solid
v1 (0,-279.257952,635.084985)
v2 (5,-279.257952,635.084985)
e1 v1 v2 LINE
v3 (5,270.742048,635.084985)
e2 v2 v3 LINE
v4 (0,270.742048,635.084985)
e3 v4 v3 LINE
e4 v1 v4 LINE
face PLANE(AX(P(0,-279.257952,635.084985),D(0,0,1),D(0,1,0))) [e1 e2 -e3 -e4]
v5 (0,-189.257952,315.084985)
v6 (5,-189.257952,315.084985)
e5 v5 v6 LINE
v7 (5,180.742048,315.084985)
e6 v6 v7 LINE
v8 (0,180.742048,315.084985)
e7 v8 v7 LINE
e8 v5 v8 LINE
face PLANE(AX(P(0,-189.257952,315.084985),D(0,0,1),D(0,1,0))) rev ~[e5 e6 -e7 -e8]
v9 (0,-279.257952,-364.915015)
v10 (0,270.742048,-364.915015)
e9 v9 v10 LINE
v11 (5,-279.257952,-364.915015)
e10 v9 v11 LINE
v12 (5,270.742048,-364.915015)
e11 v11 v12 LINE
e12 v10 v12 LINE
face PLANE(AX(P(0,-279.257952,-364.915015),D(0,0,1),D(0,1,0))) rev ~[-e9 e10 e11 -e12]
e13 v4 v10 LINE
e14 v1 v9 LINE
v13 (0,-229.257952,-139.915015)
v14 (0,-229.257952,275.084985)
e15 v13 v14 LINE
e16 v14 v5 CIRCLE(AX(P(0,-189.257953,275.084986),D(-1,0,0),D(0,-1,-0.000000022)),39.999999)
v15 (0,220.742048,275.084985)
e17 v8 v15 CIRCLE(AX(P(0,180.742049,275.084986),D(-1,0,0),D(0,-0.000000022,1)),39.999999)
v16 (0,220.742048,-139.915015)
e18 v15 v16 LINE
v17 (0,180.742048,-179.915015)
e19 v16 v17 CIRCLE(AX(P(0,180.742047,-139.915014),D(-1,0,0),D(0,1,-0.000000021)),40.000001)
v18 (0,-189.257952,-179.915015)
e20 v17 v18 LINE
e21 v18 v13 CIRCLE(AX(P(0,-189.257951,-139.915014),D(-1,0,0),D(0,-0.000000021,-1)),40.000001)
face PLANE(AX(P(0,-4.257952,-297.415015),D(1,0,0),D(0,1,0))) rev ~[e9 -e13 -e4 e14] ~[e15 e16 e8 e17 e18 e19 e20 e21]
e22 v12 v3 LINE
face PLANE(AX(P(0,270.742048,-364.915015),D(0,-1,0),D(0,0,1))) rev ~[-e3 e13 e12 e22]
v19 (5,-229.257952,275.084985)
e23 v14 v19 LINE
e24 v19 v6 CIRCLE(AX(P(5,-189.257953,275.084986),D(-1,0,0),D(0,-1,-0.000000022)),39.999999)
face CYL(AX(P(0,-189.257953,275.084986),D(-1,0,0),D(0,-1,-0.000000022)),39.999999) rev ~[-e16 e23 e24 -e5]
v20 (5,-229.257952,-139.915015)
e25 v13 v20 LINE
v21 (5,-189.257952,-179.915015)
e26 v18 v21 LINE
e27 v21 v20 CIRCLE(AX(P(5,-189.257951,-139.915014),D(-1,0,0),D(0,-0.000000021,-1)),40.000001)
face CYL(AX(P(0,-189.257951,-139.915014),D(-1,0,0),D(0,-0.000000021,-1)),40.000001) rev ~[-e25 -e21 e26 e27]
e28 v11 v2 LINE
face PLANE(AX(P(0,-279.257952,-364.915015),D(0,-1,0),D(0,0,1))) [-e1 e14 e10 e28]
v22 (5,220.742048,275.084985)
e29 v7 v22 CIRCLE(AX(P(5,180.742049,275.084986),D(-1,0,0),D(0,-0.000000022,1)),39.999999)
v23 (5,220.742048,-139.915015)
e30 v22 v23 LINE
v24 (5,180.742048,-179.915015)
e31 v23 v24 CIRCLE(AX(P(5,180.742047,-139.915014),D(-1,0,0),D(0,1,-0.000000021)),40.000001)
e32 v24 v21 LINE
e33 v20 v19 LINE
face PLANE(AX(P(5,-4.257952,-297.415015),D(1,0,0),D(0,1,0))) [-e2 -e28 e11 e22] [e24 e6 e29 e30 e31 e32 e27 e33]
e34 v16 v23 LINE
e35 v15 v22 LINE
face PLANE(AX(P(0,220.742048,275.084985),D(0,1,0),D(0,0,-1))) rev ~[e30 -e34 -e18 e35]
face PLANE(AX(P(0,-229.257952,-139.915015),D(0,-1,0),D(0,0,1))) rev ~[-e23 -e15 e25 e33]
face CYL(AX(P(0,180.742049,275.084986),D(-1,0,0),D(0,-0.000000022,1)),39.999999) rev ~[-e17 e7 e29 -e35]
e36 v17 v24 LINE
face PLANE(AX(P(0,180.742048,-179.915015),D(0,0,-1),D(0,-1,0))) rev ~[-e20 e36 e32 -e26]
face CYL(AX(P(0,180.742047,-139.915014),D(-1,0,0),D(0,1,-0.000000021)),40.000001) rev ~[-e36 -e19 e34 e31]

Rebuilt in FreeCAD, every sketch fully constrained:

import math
import FreeCAD as App
import Part
import Sketcher

doc = App.newDocument("Part")
body = doc.addObject("PartDesign::Body", "Body")

# Sketch on YZ plane
sketch1 = body.newObject("Sketcher::SketchObject", "Sketch")
sketch1.AttachmentSupport = (doc.getObject("YZ_Plane"), [""])
sketch1.MapMode = "FlatFace"
sketch1.addGeometry([
    Part.LineSegment(App.Vector(-279.257952, 365.084985, 0), App.Vector(-279.257952, -229.915015, 0)),  # 0
    Part.LineSegment(App.Vector(-279.257952, -229.915015, 0), App.Vector(270.742048, -229.915015, 0)),  # 1
    Part.LineSegment(App.Vector(270.742048, -229.915015, 0), App.Vector(270.742048, 365.084985, 0)),  # 2
    Part.LineSegment(App.Vector(270.742048, 365.084985, 0), App.Vector(-279.257952, 365.084985, 0)),  # 3
    Part.LineSegment(App.Vector(-229.257952, -139.915015, 0), App.Vector(-229.257952, 275.084985, 0)),  # 4
    Part.ArcOfCircle(Part.Circle(App.Vector(-189.257953, 275.084986, 0), App.Vector(0, 0, 1), 39.999999), math.radians(89.999999), math.radians(180.000001)),  # 5
    Part.LineSegment(App.Vector(-189.257952, 315.084985, 0), App.Vector(180.742048, 315.084985, 0)),  # 6
    Part.ArcOfCircle(Part.Circle(App.Vector(180.742049, 275.084986, 0), App.Vector(0, 0, 1), 39.999999), math.radians(-0.000001), math.radians(90.000001)),  # 7
    Part.LineSegment(App.Vector(220.742048, 275.084985, 0), App.Vector(220.742048, -139.915015, 0)),  # 8
    Part.ArcOfCircle(Part.Circle(App.Vector(180.742047, -139.915014, 0), App.Vector(0, 0, 1), 40.000001), math.radians(-89.999999), math.radians(-0.000001)),  # 9
    Part.LineSegment(App.Vector(180.742048, -179.915015, 0), App.Vector(-189.257952, -179.915015, 0)),  # 10
    Part.ArcOfCircle(Part.Circle(App.Vector(-189.257951, -139.915014, 0), App.Vector(0, 0, 1), 40.000001), math.radians(-179.999999), math.radians(-90.000001)),  # 11
], False)
sketch1.addConstraint([
    Sketcher.Constraint("Coincident", 0, 2, 1, 1),
    Sketcher.Constraint("Coincident", 1, 2, 2, 1),
    Sketcher.Constraint("Coincident", 2, 2, 3, 1),
    Sketcher.Constraint("Coincident", 3, 2, 0, 1),
    Sketcher.Constraint("Tangent", 4, 2, 5, 2),
    Sketcher.Constraint("Tangent", 5, 1, 6, 1),
    Sketcher.Constraint("Tangent", 6, 2, 7, 2),
    Sketcher.Constraint("Tangent", 7, 1, 8, 1),
    Sketcher.Constraint("Tangent", 8, 2, 9, 2),
    Sketcher.Constraint("Tangent", 9, 1, 10, 1),
    Sketcher.Constraint("Tangent", 10, 2, 11, 2),
    Sketcher.Constraint("Tangent", 11, 1, 4, 1),
    Sketcher.Constraint("Vertical", 0),
    Sketcher.Constraint("Horizontal", 1),
    Sketcher.Constraint("Vertical", 2),
    Sketcher.Constraint("Horizontal", 3),
    Sketcher.Constraint("Vertical", 4),
    Sketcher.Constraint("Horizontal", 6),
    Sketcher.Constraint("Vertical", 8),
    Sketcher.Constraint("Horizontal", 10),
    Sketcher.Constraint("Equal", 5, 7),
    Sketcher.Constraint("Equal", 7, 9),
    Sketcher.Constraint("Equal", 9, 11),
    Sketcher.Constraint("Radius", 5, 39.999999),
    Sketcher.Constraint("DistanceX", 1, 1, 1, 2, 550.0),
    Sketcher.Constraint("DistanceX", 6, 1, 6, 2, 370.0),
    Sketcher.Constraint("DistanceY", 0, 2, 0, 1, 595.0),
    Sketcher.Constraint("DistanceY", 4, 1, 4, 2, 415.0),
    Sketcher.Constraint("DistanceX", 0, 2, 11, 3, 90.000001),
    Sketcher.Constraint("DistanceY", 0, 2, 11, 3, 90.000001),
    Sketcher.Constraint("DistanceX", -1, 1, 7, 3, 180.742049),
    Sketcher.Constraint("DistanceY", -1, 1, 5, 3, 275.084986),
])
pad1 = body.newObject("PartDesign::Pad", "Pad")
pad1.Profile = sketch1
pad1.Length = 5

# Sketch on YZ plane
sketch2 = body.newObject("Sketcher::SketchObject", "Sketch001")
sketch2.AttachmentSupport = (doc.getObject("YZ_Plane"), [""])
sketch2.MapMode = "FlatFace"
sketch2.addGeometry([
    Part.LineSegment(App.Vector(-279.257952, 635.084985, 0), App.Vector(-279.257952, 365.084985, 0)),
    Part.LineSegment(App.Vector(-279.257952, 365.084985, 0), App.Vector(270.742048, 365.084985, 0)),
    Part.LineSegment(App.Vector(270.742048, 365.084985, 0), App.Vector(270.742048, 635.084985, 0)),
    Part.LineSegment(App.Vector(270.742048, 635.084985, 0), App.Vector(-279.257952, 635.084985, 0)),
], False)
sketch2.addConstraint([
    Sketcher.Constraint("Coincident", 0, 2, 1, 1),
    Sketcher.Constraint("Coincident", 1, 2, 2, 1),
    Sketcher.Constraint("Coincident", 2, 2, 3, 1),
    Sketcher.Constraint("Coincident", 3, 2, 0, 1),
    Sketcher.Constraint("Vertical", 0),
    Sketcher.Constraint("Horizontal", 1),
    Sketcher.Constraint("Vertical", 2),
    Sketcher.Constraint("Horizontal", 3),
    Sketcher.Constraint("DistanceX", 1, 1, 1, 2, 550.0),
    Sketcher.Constraint("DistanceY", 0, 2, 0, 1, 270.0),
    Sketcher.Constraint("DistanceX", 0, 2, -1, 1, 279.257952),
    Sketcher.Constraint("DistanceY", -1, 1, 0, 2, 365.084985),
])
pad2 = body.newObject("PartDesign::Pad", "Pad001")
pad2.Profile = sketch2
pad2.Length = 5

# Sketch on YZ plane
sketch3 = body.newObject("Sketcher::SketchObject", "Sketch002")
sketch3.AttachmentSupport = (doc.getObject("YZ_Plane"), [""])
sketch3.MapMode = "FlatFace"
sketch3.addGeometry([
    Part.LineSegment(App.Vector(-279.257952, -229.915015, 0), App.Vector(-279.257952, -364.915015, 0)),
    Part.LineSegment(App.Vector(-279.257952, -364.915015, 0), App.Vector(270.742048, -364.915015, 0)),
    Part.LineSegment(App.Vector(270.742048, -364.915015, 0), App.Vector(270.742048, -229.915015, 0)),
    Part.LineSegment(App.Vector(270.742048, -229.915015, 0), App.Vector(-279.257952, -229.915015, 0)),
], False)
sketch3.addConstraint([
    Sketcher.Constraint("Coincident", 0, 2, 1, 1),
    Sketcher.Constraint("Coincident", 1, 2, 2, 1),
    Sketcher.Constraint("Coincident", 2, 2, 3, 1),
    Sketcher.Constraint("Coincident", 3, 2, 0, 1),
    Sketcher.Constraint("Vertical", 0),
    Sketcher.Constraint("Horizontal", 1),
    Sketcher.Constraint("Vertical", 2),
    Sketcher.Constraint("Horizontal", 3),
    Sketcher.Constraint("DistanceX", 1, 1, 1, 2, 550.0),
    Sketcher.Constraint("DistanceY", 0, 2, 0, 1, 135.0),
    Sketcher.Constraint("DistanceX", 0, 2, -1, 1, 279.257952),
    Sketcher.Constraint("DistanceY", 0, 2, -1, 1, 364.915015),
])
pad3 = body.newObject("PartDesign::Pad", "Pad002")
pad3.Profile = sketch3
pad3.Length = 5

doc.recompute()
